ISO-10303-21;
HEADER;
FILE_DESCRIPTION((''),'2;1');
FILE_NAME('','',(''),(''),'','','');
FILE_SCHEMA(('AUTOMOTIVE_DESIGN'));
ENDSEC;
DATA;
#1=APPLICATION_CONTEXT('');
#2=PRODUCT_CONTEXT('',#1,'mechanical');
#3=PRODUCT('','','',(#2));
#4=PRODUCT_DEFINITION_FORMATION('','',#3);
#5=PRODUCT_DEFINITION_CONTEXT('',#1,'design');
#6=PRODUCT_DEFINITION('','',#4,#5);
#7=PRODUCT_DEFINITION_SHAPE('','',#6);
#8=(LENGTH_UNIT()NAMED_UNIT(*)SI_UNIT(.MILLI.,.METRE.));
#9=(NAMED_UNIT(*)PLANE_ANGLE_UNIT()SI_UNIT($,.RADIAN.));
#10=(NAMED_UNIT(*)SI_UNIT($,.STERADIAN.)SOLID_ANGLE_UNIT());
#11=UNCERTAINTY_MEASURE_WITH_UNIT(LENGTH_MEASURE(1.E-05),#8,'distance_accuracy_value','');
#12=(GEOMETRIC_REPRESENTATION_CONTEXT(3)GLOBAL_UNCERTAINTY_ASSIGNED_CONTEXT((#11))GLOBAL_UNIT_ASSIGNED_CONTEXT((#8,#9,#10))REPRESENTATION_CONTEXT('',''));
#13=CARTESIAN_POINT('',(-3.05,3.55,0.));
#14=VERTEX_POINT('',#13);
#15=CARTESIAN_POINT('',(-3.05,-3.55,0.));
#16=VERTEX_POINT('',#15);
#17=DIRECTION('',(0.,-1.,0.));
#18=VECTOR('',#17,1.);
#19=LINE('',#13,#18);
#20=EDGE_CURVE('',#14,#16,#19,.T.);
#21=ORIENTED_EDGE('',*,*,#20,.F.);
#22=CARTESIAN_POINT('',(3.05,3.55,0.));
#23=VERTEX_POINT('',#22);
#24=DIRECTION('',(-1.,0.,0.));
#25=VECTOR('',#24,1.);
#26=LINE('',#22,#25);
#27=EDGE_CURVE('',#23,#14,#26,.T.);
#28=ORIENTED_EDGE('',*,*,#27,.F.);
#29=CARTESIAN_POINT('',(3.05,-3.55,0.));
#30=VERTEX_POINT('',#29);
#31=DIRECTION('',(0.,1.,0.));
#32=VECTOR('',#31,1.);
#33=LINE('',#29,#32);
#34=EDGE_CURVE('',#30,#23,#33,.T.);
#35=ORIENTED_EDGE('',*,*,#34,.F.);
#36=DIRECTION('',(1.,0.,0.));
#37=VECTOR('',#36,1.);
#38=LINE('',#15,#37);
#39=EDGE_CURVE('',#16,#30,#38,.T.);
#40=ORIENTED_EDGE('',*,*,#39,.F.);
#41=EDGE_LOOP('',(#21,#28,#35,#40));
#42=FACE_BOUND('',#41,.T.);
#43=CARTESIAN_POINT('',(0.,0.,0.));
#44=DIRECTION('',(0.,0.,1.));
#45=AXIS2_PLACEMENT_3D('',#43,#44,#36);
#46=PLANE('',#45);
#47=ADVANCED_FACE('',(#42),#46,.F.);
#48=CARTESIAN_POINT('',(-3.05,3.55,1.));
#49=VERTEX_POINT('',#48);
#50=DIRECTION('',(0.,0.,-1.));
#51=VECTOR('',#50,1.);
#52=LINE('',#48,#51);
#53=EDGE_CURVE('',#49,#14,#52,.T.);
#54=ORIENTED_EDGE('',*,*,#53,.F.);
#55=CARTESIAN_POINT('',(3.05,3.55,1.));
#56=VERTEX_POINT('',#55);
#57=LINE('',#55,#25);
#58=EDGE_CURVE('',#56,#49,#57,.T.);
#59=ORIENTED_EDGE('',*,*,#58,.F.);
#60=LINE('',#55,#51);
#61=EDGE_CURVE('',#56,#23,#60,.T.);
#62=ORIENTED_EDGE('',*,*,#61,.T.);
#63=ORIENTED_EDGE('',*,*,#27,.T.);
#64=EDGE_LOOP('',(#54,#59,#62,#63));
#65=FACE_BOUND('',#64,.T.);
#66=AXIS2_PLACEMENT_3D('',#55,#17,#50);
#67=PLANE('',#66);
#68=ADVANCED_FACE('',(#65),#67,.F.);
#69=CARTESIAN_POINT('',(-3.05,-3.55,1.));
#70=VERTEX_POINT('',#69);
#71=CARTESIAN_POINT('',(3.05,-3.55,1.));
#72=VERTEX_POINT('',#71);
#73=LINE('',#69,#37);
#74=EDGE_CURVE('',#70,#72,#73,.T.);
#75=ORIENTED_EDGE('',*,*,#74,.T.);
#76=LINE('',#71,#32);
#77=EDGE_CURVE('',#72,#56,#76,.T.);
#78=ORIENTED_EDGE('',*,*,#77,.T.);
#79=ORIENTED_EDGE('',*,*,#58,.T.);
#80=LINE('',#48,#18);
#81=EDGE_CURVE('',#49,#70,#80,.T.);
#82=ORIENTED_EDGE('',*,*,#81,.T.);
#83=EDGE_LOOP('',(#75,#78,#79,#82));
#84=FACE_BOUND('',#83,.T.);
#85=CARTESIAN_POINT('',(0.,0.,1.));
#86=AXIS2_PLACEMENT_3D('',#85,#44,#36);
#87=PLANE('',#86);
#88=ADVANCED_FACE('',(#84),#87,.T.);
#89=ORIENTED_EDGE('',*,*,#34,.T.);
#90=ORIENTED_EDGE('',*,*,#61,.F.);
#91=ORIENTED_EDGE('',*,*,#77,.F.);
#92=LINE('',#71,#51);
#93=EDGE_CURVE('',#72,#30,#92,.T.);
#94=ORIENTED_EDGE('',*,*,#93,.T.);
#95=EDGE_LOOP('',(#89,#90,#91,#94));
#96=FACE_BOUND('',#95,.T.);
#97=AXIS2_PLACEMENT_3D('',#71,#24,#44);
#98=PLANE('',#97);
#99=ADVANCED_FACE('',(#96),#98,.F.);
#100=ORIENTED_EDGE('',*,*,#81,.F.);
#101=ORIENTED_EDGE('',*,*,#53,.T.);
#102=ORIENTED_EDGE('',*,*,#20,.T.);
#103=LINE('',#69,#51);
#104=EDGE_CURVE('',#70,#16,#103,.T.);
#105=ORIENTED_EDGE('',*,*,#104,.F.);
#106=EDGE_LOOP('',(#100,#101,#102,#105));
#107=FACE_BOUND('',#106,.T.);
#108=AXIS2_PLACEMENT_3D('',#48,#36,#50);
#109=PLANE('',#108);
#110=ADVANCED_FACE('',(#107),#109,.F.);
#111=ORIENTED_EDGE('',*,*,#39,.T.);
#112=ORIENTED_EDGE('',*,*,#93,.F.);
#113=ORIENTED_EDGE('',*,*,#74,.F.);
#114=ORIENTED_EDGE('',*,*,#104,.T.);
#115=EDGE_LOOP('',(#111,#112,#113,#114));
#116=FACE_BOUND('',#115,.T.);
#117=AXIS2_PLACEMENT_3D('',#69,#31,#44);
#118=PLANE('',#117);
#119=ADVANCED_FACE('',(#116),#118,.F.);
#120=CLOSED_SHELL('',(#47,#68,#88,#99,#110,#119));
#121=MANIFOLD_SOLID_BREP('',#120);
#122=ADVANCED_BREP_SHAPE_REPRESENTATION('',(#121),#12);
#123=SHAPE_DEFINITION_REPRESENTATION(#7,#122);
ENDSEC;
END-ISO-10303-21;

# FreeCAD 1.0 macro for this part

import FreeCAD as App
import Part
import Sketcher


def add_polygon(sketch, points):
    """Adds a closed chain of lines whose ends are joined by coincident constraints."""
    first, n = sketch.GeometryCount, len(points)
    for a, b in zip(points, points[1:] + points[:1]):
        sketch.addGeometry(Part.LineSegment(App.Vector(*a, 0), App.Vector(*b, 0)), False)
    for i in range(n):
        sketch.addConstraint(Sketcher.Constraint("Coincident", first + i, 2, first + (i + 1) % n, 1))

doc = App.newDocument("Part")
body = doc.addObject("PartDesign::Body", "Body")

# Sketch on XY plane
sketch1 = body.newObject("Sketcher::SketchObject", "Sketch")
sketch1.AttachmentSupport = (doc.getObject("XY_Plane"), [""])
sketch1.MapMode = "FlatFace"
add_polygon(sketch1, [(-3.05, 3.55), (-3.05, -3.55), (3.05, -3.55), (3.05, 3.55)])  # lines 0-3
sketch1.addConstraint(Sketcher.Constraint("Vertical", 0))
sketch1.addConstraint(Sketcher.Constraint("Horizontal", 1))
sketch1.addConstraint(Sketcher.Constraint("Vertical", 2))
sketch1.addConstraint(Sketcher.Constraint("Horizontal", 3))
sketch1.addConstraint(Sketcher.Constraint("Symmetric", 0, 2, 2, 2, -1, 1))
sketch1.addConstraint(Sketcher.Constraint("DistanceX", 1, 1, 1, 2, 6.1))
sketch1.addConstraint(Sketcher.Constraint("DistanceY", 0, 2, 0, 1, 7.1))
pad1 = body.newObject("PartDesign::Pad", "Pad")
pad1.Profile = sketch1
pad1.Length = 1

doc.recompute()
